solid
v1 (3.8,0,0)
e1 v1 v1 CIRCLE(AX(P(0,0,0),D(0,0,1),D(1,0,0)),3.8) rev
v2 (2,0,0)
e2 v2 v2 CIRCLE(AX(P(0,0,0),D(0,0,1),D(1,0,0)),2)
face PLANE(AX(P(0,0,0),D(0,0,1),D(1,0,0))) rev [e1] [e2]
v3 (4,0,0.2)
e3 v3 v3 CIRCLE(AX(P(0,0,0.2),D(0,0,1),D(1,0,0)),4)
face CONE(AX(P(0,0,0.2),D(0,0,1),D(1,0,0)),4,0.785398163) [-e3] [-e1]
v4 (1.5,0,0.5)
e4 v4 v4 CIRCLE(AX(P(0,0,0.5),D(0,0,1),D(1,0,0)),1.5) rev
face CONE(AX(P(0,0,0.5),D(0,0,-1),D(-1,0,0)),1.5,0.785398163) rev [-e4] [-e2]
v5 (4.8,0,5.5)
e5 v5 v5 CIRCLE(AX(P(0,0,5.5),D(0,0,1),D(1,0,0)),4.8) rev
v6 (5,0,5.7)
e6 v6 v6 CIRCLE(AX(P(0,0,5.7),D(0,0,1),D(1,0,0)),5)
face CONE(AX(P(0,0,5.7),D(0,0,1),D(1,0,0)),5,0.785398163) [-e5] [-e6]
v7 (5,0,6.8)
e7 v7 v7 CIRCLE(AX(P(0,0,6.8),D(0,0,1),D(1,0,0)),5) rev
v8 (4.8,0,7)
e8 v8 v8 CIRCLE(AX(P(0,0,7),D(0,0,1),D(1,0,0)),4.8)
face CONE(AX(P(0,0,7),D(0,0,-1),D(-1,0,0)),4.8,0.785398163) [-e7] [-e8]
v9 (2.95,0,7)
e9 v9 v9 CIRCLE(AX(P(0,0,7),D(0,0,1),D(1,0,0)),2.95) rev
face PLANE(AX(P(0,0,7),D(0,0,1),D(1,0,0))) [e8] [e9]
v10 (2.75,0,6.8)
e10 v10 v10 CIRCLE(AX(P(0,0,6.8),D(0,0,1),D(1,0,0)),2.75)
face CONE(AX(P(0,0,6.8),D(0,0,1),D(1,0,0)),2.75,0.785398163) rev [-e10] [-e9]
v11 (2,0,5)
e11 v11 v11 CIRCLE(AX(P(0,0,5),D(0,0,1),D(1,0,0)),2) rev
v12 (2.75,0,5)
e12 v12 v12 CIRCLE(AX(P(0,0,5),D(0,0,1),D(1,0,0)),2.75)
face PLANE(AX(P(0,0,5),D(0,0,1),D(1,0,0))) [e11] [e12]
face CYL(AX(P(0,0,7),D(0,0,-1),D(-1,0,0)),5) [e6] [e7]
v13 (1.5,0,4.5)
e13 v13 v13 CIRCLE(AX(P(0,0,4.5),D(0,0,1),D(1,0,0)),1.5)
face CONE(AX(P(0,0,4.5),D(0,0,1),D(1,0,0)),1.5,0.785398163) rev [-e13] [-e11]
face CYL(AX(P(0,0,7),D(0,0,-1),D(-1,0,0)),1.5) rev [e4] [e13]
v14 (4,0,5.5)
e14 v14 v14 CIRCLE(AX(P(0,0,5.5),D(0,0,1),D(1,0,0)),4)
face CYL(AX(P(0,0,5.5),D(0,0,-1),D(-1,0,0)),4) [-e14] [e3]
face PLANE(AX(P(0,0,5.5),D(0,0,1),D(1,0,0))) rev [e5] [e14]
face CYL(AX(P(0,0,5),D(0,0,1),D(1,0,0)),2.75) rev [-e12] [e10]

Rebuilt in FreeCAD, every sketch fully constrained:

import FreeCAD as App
import Part
import Sketcher

V = App.Vector
Q = App.Units.Quantity


def edges_at(feature, points):
    """Names of the edges that pass closest to the given points."""
    edges = feature.Shape.Edges
    near = lambda p: min(range(len(edges)), key=lambda i: edges[i].distToShape(Part.Vertex(*p))[0])
    return sorted({f"Edge{near(p) + 1}" for p in points})

doc = App.newDocument("Part")
body = doc.addObject("PartDesign::Body", "Body")

sketch1 = body.newObject("Sketcher::SketchObject", "Sketch")
sketch1.AttachmentSupport = (doc.getObject("XY_Plane"), [""])
sketch1.MapMode = "FlatFace"
sketch1.addGeometry(Part.Circle(V(0, 0, 0), V(0, 0, 1), 4), False)
sketch1.addConstraint([
    Sketcher.Constraint("Coincident", 0, 3, -1, 1),
    Sketcher.Constraint("Diameter", 0, Q("8 mm")),
])
pad1 = body.newObject("PartDesign::Pad", "Pad")
pad1.Profile = sketch1
pad1.Length = 5.5

sketch2 = body.newObject("Sketcher::SketchObject", "Sketch001")
sketch2.AttachmentSupport = (doc.getObject("XY_Plane"), [""])
sketch2.MapMode = "FlatFace"
sketch2.AttachmentOffset = App.Placement(V(0, 0, 5.5), App.Rotation())
sketch2.addGeometry(Part.Circle(V(0, 0, 0), V(0, 0, 1), 5), False)
sketch2.addConstraint([
    Sketcher.Constraint("Coincident", 0, 3, -1, 1),
    Sketcher.Constraint("Diameter", 0, Q("10 mm")),
])
pad2 = body.newObject("PartDesign::Pad", "Pad001")
pad2.Profile = sketch2
pad2.Length = 1.5

sketch3 = body.newObject("Sketcher::SketchObject", "Sketch002")
sketch3.AttachmentSupport = (doc.getObject("XY_Plane"), [""])
sketch3.MapMode = "FlatFace"
sketch3.AttachmentOffset = App.Placement(V(0, 0, 7), App.Rotation())
sketch3.addGeometry(Part.Circle(V(0, 0, 0), V(0, 0, 1), 2.8), False)
sketch3.addConstraint([
    Sketcher.Constraint("Coincident", 0, 3, -1, 1),
    Sketcher.Constraint("Diameter", 0, Q("5.5 mm")),
])
pocket1 = body.newObject("PartDesign::Pocket", "Pocket")
pocket1.Profile = sketch3
pocket1.Length = 2

sketch4 = body.newObject("Sketcher::SketchObject", "Sketch003")
sketch4.AttachmentSupport = (doc.getObject("XY_Plane"), [""])
sketch4.MapMode = "FlatFace"
sketch4.addGeometry(Part.Circle(V(0, 0, 0), V(0, 0, 1), 1.5), False)
sketch4.addConstraint([
    Sketcher.Constraint("Coincident", 0, 3, -1, 1),
    Sketcher.Constraint("Diameter", 0, Q("3 mm")),
])
pocket2 = body.newObject("PartDesign::Pocket", "Pocket001")
pocket2.Profile = sketch4
pocket2.Type = "ThroughAll"
pocket2.Reversed = True
doc.recompute()

chamfer = body.newObject("PartDesign::Chamfer", "Chamfer")
chamfer.Base = (pocket2, edges_at(pocket2, [(-5, 0, 5.5), (-5, 0, 7)]))
chamfer.Size = 0.2
doc.recompute()

chamfer2 = body.newObject("PartDesign::Chamfer", "Chamfer001")
chamfer2.Base = (chamfer, edges_at(chamfer, [(-4, 0, 0)]))
chamfer2.Size = 0.2
doc.recompute()

chamfer3 = body.newObject("PartDesign::Chamfer", "Chamfer002")
chamfer3.Base = (chamfer2, edges_at(chamfer2, [(-2.75, 0, 7)]))
chamfer3.Size = 0.2
doc.recompute()

chamfer4 = body.newObject("PartDesign::Chamfer", "Chamfer003")
chamfer4.Base = (chamfer3, edges_at(chamfer3, [(1.5, 0, 5), (1.5, 0, 0)]))
chamfer4.Size = 0.5

doc.recompute()
